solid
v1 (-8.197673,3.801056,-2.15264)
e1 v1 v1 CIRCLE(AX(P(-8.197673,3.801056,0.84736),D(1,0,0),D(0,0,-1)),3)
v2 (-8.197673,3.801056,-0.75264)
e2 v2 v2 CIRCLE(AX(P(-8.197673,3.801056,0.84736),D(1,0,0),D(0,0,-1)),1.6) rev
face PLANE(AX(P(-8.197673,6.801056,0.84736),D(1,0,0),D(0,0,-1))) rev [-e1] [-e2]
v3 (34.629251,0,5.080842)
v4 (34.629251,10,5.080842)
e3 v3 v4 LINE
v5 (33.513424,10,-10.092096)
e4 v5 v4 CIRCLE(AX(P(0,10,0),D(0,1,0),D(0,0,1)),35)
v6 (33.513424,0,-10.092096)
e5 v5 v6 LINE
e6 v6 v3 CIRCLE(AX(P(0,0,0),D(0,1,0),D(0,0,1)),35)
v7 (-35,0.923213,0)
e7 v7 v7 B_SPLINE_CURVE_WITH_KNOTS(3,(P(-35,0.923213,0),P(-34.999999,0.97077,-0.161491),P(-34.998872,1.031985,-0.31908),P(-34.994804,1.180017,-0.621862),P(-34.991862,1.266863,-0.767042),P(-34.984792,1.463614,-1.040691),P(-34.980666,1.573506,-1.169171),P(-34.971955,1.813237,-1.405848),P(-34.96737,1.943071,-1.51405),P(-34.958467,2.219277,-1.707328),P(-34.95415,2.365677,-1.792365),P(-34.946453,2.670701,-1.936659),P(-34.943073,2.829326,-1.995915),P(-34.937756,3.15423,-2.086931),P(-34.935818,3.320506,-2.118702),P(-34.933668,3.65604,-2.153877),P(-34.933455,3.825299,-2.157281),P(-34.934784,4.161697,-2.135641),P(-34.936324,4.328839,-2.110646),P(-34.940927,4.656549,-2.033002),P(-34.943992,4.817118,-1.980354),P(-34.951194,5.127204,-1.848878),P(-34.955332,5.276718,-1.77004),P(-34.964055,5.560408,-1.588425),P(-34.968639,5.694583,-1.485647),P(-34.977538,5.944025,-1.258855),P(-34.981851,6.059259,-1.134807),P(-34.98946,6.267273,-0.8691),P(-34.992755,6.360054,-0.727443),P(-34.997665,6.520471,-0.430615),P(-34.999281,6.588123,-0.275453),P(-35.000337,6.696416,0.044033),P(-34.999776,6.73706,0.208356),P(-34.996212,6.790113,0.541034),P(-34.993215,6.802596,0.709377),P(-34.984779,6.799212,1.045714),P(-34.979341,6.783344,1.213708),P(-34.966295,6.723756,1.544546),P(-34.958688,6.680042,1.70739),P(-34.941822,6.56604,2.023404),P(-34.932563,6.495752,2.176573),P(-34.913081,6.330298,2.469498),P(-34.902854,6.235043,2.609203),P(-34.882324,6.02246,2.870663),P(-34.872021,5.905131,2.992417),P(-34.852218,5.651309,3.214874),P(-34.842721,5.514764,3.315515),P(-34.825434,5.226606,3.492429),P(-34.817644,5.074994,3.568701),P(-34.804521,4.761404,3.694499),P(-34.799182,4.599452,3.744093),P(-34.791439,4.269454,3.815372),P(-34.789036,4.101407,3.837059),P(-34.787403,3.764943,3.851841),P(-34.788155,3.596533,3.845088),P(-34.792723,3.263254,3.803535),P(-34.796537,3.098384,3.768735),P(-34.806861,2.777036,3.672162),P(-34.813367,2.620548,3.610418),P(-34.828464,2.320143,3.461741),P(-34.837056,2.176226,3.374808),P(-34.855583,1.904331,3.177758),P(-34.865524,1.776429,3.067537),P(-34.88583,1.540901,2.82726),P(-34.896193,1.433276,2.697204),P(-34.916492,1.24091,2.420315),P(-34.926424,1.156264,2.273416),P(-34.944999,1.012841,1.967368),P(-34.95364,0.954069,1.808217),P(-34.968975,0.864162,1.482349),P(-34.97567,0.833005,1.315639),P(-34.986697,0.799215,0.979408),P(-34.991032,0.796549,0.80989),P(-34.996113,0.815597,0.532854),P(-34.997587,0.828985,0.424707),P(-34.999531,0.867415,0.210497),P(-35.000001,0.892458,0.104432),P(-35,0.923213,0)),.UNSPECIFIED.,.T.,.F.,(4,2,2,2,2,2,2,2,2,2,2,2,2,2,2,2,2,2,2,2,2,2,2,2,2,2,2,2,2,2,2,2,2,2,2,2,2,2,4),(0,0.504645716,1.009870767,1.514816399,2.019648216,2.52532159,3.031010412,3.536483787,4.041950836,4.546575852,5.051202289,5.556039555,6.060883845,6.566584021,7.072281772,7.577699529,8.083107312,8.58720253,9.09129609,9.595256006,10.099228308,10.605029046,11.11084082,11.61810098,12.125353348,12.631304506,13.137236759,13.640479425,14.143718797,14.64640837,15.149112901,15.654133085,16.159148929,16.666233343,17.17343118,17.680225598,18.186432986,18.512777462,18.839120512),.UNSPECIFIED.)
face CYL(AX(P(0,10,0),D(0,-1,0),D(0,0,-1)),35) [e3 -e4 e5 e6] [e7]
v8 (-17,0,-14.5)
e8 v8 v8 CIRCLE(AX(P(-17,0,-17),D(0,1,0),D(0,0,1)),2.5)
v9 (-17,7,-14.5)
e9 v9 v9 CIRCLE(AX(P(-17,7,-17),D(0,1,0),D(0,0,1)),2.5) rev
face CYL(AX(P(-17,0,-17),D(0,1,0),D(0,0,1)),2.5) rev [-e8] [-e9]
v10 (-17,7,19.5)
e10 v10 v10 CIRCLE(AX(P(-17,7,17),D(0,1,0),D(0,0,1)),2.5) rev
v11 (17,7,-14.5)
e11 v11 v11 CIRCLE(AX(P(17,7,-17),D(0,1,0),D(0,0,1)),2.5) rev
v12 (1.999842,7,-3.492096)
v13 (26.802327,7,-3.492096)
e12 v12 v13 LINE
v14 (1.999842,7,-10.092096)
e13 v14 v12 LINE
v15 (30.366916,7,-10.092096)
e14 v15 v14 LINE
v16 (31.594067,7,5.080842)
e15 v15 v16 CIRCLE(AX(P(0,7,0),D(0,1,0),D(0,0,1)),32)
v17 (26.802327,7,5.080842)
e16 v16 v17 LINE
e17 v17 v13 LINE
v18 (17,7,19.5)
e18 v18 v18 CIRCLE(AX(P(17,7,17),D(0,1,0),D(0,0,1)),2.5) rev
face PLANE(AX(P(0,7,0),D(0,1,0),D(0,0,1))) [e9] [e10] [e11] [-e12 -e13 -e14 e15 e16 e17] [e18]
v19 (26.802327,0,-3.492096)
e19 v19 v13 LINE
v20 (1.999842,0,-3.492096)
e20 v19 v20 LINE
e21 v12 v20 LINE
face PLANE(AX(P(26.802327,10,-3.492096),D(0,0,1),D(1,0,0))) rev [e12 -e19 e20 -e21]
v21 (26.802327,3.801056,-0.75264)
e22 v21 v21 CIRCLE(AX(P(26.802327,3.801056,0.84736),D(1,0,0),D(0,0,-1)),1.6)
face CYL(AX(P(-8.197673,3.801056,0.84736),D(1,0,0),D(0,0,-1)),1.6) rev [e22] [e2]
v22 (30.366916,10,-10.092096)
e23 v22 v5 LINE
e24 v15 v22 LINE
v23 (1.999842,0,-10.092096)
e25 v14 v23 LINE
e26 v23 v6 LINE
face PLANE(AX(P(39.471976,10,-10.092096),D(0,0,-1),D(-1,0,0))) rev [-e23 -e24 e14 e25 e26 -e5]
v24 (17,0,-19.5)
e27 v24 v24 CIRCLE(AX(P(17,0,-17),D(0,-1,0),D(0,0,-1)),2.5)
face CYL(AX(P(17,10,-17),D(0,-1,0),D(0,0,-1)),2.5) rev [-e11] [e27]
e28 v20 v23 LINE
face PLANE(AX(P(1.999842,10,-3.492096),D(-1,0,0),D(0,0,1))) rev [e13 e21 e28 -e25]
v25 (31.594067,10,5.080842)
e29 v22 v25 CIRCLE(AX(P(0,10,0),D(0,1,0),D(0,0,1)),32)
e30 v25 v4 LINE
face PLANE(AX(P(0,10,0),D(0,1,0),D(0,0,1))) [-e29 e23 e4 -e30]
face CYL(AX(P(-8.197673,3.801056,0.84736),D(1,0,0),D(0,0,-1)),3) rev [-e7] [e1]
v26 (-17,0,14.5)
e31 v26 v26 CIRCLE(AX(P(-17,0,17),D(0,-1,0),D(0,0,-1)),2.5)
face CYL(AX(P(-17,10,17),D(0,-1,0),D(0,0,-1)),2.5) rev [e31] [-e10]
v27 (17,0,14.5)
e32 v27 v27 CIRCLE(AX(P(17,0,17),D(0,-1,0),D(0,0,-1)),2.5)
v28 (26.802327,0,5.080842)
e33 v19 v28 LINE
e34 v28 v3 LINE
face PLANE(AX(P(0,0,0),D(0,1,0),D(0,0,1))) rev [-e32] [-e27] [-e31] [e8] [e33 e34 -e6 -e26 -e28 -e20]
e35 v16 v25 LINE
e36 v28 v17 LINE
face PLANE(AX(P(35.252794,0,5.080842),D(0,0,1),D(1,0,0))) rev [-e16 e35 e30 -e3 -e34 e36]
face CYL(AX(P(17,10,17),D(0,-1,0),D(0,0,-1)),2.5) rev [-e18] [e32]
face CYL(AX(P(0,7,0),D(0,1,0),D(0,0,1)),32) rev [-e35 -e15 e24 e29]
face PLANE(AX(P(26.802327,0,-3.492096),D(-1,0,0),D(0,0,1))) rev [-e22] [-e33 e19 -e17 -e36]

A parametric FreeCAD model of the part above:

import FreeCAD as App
import Part
import Sketcher
Q = App.Units.Quantity

doc = App.newDocument("Part")
body = doc.addObject("PartDesign::Body", "Body")

# Sketch on XZ plane
sketch1 = body.newObject("Sketcher::SketchObject", "Sketch")
sketch1.AttachmentSupport = (doc.getObject("XZ_Plane"), [""])
sketch1.MapMode = "FlatFace"
sketch1.addGeometry(Part.Circle(App.Vector(0, 0, 0), App.Vector(0, 0, 1), 35), False)
sketch1.addConstraint([
    Sketcher.Constraint("Coincident", 0, 3, -1, 1),
    Sketcher.Constraint("Diameter", 0, Q("70 mm")),
])
pad1 = body.newObject("PartDesign::Pad", "Pad")
pad1.Profile = sketch1
pad1.Length = 10
pad1.Reversed = True

# Sketch on XZ plane
sketch2 = body.newObject("Sketcher::SketchObject", "Sketch001")
sketch2.AttachmentSupport = (doc.getObject("XZ_Plane"), [""])
sketch2.MapMode = "FlatFace"
sketch2.AttachmentOffset = App.Placement(App.Vector(0, 0, -10), App.Rotation())
sketch2.addGeometry([
    Part.LineSegment(App.Vector(27, -3, 0), App.Vector(27, 5, 0)),
    Part.LineSegment(App.Vector(27, 5, 0), App.Vector(35, 5, 0)),
    Part.LineSegment(App.Vector(35, 5, 0), App.Vector(35, -3, 0)),
    Part.LineSegment(App.Vector(35, -3, 0), App.Vector(27, -3, 0)),
], False)
sketch2.addConstraint([
    Sketcher.Constraint("Coincident", 0, 2, 1, 1),
    Sketcher.Constraint("Coincident", 1, 2, 2, 1),
    Sketcher.Constraint("Coincident", 2, 2, 3, 1),
    Sketcher.Constraint("Coincident", 3, 2, 0, 1),
    Sketcher.Constraint("Vertical", 0),
    Sketcher.Constraint("Horizontal", 1),
    Sketcher.Constraint("Vertical", 2),
    Sketcher.Constraint("Horizontal", 3),
    Sketcher.Constraint("DistanceX", 1, 1, 1, 2, Q("8.450467 mm")),
    Sketcher.Constraint("DistanceY", 0, 1, 0, 2, Q("8.572938 mm")),
    Sketcher.Constraint("DistanceY", -1, 1, 0, 2, Q("5.080842 mm")),
    Sketcher.Constraint("DistanceX", -1, 1, 0, 2, Q("26.802327 mm")),
])
pocket1 = body.newObject("PartDesign::Pocket", "Pocket")
pocket1.Profile = sketch2
pocket1.Type = "ThroughAll"
pocket1.Reversed = True

# Sketch on XZ plane
sketch3 = body.newObject("Sketcher::SketchObject", "Sketch002")
sketch3.AttachmentSupport = (doc.getObject("XZ_Plane"), [""])
sketch3.MapMode = "FlatFace"
sketch3.AttachmentOffset = App.Placement(App.Vector(0, 0, -10), App.Rotation())
sketch3.addGeometry(Part.Circle(App.Vector(-17, -17, 0), App.Vector(0, 0, 1), 2.5), False)
sketch3.addConstraint([
    Sketcher.Constraint("Diameter", 0, Q("5 mm")),
    Sketcher.Constraint("DistanceX", 0, 3, -1, 1, Q("17 mm")),
    Sketcher.Constraint("DistanceY", 0, 3, -1, 1, Q("17 mm")),
])
pocket2 = body.newObject("PartDesign::Pocket", "Pocket001")
pocket2.Profile = sketch3
pocket2.Type = "ThroughAll"
pocket2.Midplane = True

# Sketch on XZ plane
sketch4 = body.newObject("Sketcher::SketchObject", "Sketch003")
sketch4.AttachmentSupport = (doc.getObject("XZ_Plane"), [""])
sketch4.MapMode = "FlatFace"
sketch4.addGeometry(Part.Circle(App.Vector(17, -17, 0), App.Vector(0, 0, 1), 2.5), False)
sketch4.addConstraint([
    Sketcher.Constraint("Diameter", 0, Q("5 mm")),
    Sketcher.Constraint("DistanceX", -1, 1, 0, 3, Q("17 mm")),
    Sketcher.Constraint("DistanceY", 0, 3, -1, 1, Q("17 mm")),
])
pocket3 = body.newObject("PartDesign::Pocket", "Pocket002")
pocket3.Profile = sketch4
pocket3.Type = "ThroughAll"

# Sketch on XZ plane
sketch5 = body.newObject("Sketcher::SketchObject", "Sketch004")
sketch5.AttachmentSupport = (doc.getObject("XZ_Plane"), [""])
sketch5.MapMode = "FlatFace"
sketch5.addGeometry(Part.Circle(App.Vector(-17, 17, 0), App.Vector(0, 0, 1), 2.5), False)
sketch5.addConstraint([
    Sketcher.Constraint("Diameter", 0, Q("5 mm")),
    Sketcher.Constraint("DistanceX", 0, 3, -1, 1, Q("17 mm")),
    Sketcher.Constraint("DistanceY", -1, 1, 0, 3, Q("17 mm")),
])
pocket4 = body.newObject("PartDesign::Pocket", "Pocket003")
pocket4.Profile = sketch5
pocket4.Type = "ThroughAll"

# Sketch on XZ plane
sketch6 = body.newObject("Sketcher::SketchObject", "Sketch005")
sketch6.AttachmentSupport = (doc.getObject("XZ_Plane"), [""])
sketch6.MapMode = "FlatFace"
sketch6.addGeometry(Part.Circle(App.Vector(17, 17, 0), App.Vector(0, 0, 1), 2.5), False)
sketch6.addConstraint([
    Sketcher.Constraint("Diameter", 0, Q("5 mm")),
    Sketcher.Constraint("DistanceX", -1, 1, 0, 3, Q("17 mm")),
    Sketcher.Constraint("DistanceY", -1, 1, 0, 3, Q("17 mm")),
])
pocket5 = body.newObject("PartDesign::Pocket", "Pocket004")
pocket5.Profile = sketch6
pocket5.Type = "ThroughAll"

# Sketch on XZ plane
sketch7 = body.newObject("Sketcher::SketchObject", "Sketch006")
sketch7.AttachmentSupport = (doc.getObject("XZ_Plane"), [""])
sketch7.MapMode = "FlatFace"
sketch7.AttachmentOffset = App.Placement(App.Vector(0, 0, -10), App.Rotation())
sketch7.addGeometry(Part.Circle(App.Vector(0, 0, 0), App.Vector(0, 0, 1), 32), False)
sketch7.addConstraint([
    Sketcher.Constraint("Coincident", 0, 3, -1, 1),
    Sketcher.Constraint("Diameter", 0, Q("64 mm")),
])
pocket6 = body.newObject("PartDesign::Pocket", "Pocket005")
pocket6.Profile = sketch7
pocket6.Length = 3
pocket6.Reversed = True

# Sketch on YZ plane
sketch8 = body.newObject("Sketcher::SketchObject", "Sketch007")
sketch8.AttachmentSupport = (doc.getObject("YZ_Plane"), [""])
sketch8.MapMode = "FlatFace"
sketch8.AttachmentOffset = App.Placement(App.Vector(0, 0, 26.802327), App.Rotation())
sketch8.addGeometry(Part.Circle(App.Vector(3.8, 0.8, 0), App.Vector(0, 0, 1), 1.6), False)
sketch8.addConstraint([
    Sketcher.Constraint("Diameter", 0, Q("3.2 mm")),
    Sketcher.Constraint("DistanceY", -1, 1, 0, 3, Q("0.84736 mm")),
    Sketcher.Constraint("DistanceX", -1, 1, 0, 3, Q("3.801056 mm")),
])
pocket7 = body.newObject("PartDesign::Pocket", "Pocket006")
pocket7.Profile = sketch8
pocket7.Length = 35

# Sketch on XZ plane
sketch9 = body.newObject("Sketcher::SketchObject", "Sketch008")
sketch9.AttachmentSupport = (doc.getObject("XZ_Plane"), [""])
sketch9.MapMode = "FlatFace"
sketch9.AttachmentOffset = App.Placement(App.Vector(0, 0, -3.801056), App.Rotation())
sketch9.addGeometry([
    Part.LineSegment(App.Vector(-35, 0.8, 0), App.Vector(-8.2, 0.8, 0)),
    Part.LineSegment(App.Vector(-8.2, 0.8, 0), App.Vector(-8.2, -2.2, 0)),
    Part.LineSegment(App.Vector(-8.2, -2.2, 0), App.Vector(-35, -2.2, 0)),
    Part.LineSegment(App.Vector(-35, -2.2, 0), App.Vector(-35, 0.8, 0)),
], False)
sketch9.addGeometry(Part.LineSegment(App.Vector(-8.2, 0.8, 0), App.Vector(-35, 0.8, 0)), True)  # axis
sketch9.addConstraint([
    Sketcher.Constraint("Coincident", 0, 2, 1, 1),
    Sketcher.Constraint("Coincident", 1, 2, 2, 1),
    Sketcher.Constraint("Coincident", 2, 2, 3, 1),
    Sketcher.Constraint("Coincident", 3, 2, 0, 1),
    Sketcher.Constraint("Horizontal", 0),
    Sketcher.Constraint("Vertical", 1),
    Sketcher.Constraint("Horizontal", 2),
    Sketcher.Constraint("Vertical", 3),
    Sketcher.Constraint("Horizontal", 4),
    Sketcher.Constraint("Coincident", 4, 1, 0, 2),
    Sketcher.Constraint("Vertical", 2, 2, 4, 2),
    Sketcher.Constraint("DistanceY", 1, 2, 1, 1, Q("3 mm")),
    Sketcher.Constraint("DistanceX", 2, 2, -1, 1, Q("35 mm")),
    Sketcher.Constraint("DistanceX", 0, 1, 0, 2, Q("26.802327 mm")),
    Sketcher.Constraint("DistanceY", -1, 1, 0, 2, Q("0.84736 mm")),
])
groove = body.newObject("PartDesign::Groove", "Groove")
groove.Profile = sketch9
groove.ReferenceAxis = (sketch9, ["Axis0"])
groove.Angle = 360

# Sketch on XZ plane
sketch10 = body.newObject("Sketcher::SketchObject", "Sketch009")
sketch10.AttachmentSupport = (doc.getObject("XZ_Plane"), [""])
sketch10.MapMode = "FlatFace"
sketch10.addGeometry([
    Part.LineSegment(App.Vector(2, -3, 0), App.Vector(2, -10, 0)),
    Part.LineSegment(App.Vector(2, -10, 0), App.Vector(42, -10, 0)),
    Part.LineSegment(App.Vector(42, -10, 0), App.Vector(42, -3, 0)),
    Part.LineSegment(App.Vector(42, -3, 0), App.Vector(2, -3, 0)),
], False)
sketch10.addConstraint([
    Sketcher.Constraint("Coincident", 0, 2, 1, 1),
    Sketcher.Constraint("Coincident", 1, 2, 2, 1),
    Sketcher.Constraint("Coincident", 2, 2, 3, 1),
    Sketcher.Constraint("Coincident", 3, 2, 0, 1),
    Sketcher.Constraint("Vertical", 0),
    Sketcher.Constraint("Horizontal", 1),
    Sketcher.Constraint("Vertical", 2),
    Sketcher.Constraint("Horizontal", 3),
    Sketcher.Constraint("DistanceY", 0, 2, 0, 1, Q("6.6 mm")),
    Sketcher.Constraint("DistanceX", 1, 1, 1, 2, Q("40.019468 mm")),
    Sketcher.Constraint("DistanceX", -1, 1, 1, 2, Q("42.019311 mm")),
    Sketcher.Constraint("DistanceY", 0, 2, -1, 1, Q("10.092096 mm")),
])
pocket8 = body.newObject("PartDesign::Pocket", "Pocket007")
pocket8.Profile = sketch10
pocket8.Type = "ThroughAll"

doc.recompute()
